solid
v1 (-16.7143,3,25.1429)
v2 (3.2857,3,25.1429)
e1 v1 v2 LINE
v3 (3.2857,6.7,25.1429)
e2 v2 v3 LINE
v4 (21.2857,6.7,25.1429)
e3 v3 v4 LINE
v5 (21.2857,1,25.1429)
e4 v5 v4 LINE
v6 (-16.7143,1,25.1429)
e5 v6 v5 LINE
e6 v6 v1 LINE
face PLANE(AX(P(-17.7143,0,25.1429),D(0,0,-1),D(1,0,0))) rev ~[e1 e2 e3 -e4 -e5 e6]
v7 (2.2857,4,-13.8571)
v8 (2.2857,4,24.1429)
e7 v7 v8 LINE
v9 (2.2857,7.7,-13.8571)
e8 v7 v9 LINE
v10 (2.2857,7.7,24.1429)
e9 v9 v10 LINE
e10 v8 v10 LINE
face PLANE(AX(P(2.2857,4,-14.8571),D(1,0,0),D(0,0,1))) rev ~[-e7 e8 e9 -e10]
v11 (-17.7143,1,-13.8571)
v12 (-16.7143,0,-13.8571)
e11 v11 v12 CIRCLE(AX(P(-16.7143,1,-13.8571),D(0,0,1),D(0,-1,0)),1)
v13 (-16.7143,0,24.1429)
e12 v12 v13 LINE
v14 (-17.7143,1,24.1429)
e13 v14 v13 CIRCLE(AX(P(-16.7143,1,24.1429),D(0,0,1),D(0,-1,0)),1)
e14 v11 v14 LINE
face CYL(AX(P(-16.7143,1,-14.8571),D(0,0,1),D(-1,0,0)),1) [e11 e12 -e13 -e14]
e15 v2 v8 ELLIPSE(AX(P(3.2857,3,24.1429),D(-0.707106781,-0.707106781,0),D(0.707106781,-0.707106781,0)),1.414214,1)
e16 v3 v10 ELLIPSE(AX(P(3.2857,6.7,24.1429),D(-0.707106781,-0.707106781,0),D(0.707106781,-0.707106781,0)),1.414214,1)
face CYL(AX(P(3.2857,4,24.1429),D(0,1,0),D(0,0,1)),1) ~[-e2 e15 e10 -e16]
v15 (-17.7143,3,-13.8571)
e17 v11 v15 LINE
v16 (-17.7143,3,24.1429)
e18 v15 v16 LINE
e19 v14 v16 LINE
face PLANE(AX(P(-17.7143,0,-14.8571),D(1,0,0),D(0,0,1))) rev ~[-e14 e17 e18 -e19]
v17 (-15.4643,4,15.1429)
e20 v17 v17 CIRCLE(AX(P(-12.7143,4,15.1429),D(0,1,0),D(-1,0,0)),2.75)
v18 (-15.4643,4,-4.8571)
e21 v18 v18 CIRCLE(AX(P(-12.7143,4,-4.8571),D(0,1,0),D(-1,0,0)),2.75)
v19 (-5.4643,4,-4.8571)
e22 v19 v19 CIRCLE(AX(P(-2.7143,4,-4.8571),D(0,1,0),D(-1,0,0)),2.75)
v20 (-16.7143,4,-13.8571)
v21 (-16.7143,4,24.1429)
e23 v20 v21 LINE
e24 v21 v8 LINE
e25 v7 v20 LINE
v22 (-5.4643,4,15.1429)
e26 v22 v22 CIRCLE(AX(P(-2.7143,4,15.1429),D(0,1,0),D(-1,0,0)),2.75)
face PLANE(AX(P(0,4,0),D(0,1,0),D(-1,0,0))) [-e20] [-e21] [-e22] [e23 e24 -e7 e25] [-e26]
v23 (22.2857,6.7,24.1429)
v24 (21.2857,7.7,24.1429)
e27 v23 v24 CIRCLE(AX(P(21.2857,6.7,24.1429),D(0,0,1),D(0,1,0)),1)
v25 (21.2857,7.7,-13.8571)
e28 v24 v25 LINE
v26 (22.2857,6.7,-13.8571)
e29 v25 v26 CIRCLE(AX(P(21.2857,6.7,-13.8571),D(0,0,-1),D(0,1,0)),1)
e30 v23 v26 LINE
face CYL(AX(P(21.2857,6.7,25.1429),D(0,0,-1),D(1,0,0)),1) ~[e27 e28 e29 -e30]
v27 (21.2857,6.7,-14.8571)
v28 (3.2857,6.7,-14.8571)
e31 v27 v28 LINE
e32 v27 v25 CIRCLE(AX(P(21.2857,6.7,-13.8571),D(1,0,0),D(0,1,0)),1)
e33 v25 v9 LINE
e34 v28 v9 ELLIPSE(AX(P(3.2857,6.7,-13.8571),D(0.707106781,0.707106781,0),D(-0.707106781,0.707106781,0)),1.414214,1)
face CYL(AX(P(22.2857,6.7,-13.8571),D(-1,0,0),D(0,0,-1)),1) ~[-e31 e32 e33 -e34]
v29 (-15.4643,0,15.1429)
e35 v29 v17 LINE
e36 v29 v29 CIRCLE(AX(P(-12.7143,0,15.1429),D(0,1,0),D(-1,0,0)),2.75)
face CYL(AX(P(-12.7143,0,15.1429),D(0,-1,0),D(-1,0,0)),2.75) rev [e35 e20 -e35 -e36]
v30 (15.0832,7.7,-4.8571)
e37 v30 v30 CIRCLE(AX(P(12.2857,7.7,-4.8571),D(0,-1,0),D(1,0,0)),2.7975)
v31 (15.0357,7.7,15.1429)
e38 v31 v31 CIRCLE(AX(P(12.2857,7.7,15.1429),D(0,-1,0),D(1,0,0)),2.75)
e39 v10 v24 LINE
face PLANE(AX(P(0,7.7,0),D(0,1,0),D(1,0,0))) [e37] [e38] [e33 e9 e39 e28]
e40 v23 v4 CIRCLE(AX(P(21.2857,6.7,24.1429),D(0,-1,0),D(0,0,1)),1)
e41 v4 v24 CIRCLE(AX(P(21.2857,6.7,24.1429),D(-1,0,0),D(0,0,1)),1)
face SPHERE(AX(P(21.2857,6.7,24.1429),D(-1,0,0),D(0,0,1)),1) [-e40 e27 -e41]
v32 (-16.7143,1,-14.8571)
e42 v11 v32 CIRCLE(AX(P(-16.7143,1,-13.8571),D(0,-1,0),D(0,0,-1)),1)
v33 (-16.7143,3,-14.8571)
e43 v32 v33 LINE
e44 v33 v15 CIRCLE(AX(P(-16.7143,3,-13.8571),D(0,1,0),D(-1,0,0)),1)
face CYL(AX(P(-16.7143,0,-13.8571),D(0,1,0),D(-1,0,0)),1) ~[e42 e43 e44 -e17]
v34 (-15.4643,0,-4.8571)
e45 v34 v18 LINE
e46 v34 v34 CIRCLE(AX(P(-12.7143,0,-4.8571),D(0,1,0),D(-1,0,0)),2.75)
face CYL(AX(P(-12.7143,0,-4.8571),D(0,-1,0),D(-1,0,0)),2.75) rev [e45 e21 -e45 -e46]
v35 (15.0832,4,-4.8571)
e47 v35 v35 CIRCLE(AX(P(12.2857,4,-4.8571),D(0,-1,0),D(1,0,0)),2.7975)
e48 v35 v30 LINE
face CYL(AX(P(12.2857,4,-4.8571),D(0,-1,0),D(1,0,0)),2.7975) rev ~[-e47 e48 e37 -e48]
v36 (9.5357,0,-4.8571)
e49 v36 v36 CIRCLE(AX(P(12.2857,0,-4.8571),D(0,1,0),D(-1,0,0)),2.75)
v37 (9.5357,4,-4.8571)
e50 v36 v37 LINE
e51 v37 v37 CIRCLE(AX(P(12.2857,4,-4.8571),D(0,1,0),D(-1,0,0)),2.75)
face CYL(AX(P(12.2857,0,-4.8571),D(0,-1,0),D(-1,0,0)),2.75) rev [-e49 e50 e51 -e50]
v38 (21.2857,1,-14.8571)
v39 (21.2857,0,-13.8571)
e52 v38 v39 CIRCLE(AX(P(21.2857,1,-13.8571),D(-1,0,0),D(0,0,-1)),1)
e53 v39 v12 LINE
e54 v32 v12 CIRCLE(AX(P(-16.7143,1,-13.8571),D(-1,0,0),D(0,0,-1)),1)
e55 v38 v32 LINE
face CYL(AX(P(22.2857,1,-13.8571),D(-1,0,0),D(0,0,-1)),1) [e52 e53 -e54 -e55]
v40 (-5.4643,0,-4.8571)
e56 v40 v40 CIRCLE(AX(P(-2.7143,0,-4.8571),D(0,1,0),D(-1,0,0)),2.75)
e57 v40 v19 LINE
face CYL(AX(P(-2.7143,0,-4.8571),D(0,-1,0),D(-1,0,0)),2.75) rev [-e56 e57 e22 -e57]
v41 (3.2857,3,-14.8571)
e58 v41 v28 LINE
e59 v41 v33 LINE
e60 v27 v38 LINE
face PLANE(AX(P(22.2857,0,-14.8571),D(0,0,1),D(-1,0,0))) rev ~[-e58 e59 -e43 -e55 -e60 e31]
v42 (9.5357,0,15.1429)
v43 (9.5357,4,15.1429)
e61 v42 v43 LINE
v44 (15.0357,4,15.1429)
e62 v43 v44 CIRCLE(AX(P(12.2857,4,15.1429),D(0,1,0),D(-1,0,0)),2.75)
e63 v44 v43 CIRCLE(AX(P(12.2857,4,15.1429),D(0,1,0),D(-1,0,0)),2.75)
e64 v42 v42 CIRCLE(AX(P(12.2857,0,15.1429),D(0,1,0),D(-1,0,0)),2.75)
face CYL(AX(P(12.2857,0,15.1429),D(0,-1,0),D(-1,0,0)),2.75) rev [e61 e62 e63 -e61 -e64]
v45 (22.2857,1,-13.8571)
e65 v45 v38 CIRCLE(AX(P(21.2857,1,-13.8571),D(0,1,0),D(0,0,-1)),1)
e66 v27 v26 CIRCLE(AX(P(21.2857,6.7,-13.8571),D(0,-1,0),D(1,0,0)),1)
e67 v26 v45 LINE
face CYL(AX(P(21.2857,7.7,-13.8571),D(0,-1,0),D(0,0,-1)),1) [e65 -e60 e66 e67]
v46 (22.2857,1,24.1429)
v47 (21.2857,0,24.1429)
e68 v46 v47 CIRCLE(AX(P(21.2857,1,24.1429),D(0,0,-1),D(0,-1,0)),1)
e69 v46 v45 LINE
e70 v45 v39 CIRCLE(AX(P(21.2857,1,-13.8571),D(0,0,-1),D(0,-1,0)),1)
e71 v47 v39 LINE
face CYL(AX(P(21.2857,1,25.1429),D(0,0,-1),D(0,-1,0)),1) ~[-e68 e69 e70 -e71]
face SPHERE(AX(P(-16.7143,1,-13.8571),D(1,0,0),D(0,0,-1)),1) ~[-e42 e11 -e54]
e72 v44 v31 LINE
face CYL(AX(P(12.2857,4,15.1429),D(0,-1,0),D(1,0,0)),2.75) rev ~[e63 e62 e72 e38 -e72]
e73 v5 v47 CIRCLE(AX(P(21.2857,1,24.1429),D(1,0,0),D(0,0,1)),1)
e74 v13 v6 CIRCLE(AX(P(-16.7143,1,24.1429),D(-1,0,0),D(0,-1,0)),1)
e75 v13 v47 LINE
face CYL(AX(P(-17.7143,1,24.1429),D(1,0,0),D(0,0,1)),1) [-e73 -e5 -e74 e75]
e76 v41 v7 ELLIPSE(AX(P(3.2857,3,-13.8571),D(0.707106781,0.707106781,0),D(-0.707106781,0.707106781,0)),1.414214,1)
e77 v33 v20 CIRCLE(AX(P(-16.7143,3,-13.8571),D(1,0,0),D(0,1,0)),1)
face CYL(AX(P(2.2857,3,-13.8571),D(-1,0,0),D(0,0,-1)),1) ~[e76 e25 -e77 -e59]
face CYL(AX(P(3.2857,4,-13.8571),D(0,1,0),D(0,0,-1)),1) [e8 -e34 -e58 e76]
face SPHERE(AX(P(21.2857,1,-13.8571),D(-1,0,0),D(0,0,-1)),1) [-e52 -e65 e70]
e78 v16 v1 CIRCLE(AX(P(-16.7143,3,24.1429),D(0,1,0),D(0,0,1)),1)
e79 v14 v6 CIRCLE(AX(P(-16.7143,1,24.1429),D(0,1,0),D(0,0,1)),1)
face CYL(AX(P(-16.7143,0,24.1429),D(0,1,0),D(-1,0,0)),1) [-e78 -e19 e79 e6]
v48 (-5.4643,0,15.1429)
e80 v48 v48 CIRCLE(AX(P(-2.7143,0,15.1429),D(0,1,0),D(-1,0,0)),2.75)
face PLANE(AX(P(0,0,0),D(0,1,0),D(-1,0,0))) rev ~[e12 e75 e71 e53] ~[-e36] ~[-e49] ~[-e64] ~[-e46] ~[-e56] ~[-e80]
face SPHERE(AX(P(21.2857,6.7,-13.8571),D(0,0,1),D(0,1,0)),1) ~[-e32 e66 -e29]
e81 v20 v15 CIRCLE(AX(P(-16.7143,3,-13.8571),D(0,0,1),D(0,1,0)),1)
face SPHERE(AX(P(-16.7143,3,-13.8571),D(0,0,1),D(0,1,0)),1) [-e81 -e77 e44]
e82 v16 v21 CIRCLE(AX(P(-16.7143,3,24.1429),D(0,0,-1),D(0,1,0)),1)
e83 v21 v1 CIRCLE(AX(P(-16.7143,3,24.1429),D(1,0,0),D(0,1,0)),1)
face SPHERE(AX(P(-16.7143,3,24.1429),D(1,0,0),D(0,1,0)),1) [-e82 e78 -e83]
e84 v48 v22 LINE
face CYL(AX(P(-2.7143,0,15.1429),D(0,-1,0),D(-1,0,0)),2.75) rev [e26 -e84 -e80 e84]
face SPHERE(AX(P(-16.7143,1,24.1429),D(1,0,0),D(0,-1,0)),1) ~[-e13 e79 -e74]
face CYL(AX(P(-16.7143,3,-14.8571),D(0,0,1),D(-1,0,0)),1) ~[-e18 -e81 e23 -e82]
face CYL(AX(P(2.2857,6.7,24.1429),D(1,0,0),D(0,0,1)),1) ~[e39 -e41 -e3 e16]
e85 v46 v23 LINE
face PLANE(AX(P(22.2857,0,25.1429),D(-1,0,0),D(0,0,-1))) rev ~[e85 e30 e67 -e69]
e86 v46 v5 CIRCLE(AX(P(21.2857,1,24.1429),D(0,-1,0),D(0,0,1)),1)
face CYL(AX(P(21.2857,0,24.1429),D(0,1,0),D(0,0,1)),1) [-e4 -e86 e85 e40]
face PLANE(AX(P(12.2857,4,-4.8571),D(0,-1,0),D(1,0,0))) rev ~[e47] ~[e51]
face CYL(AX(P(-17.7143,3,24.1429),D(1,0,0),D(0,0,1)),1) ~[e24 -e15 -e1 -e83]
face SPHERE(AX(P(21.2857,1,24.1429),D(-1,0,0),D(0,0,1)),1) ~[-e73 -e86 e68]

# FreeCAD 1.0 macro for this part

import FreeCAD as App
import Part
import Sketcher

V = App.Vector
Q = App.Units.Quantity


def edges_at(feature, points):
    """Names of the edges that pass closest to the given points."""
    edges = feature.Shape.Edges
    near = lambda p: min(range(len(edges)), key=lambda i: edges[i].distToShape(Part.Vertex(*p))[0])
    return sorted({f"Edge{near(p) + 1}" for p in points})

doc = App.newDocument("Part")
body = doc.addObject("PartDesign::Body", "Body")

# Sketch on XZ plane
sketch1 = body.newObject("Sketcher::SketchObject", "Sketch")
sketch1.AttachmentSupport = (doc.getObject("XZ_Plane"), [""])
sketch1.MapMode = "FlatFace"
sketch1.addGeometry([
    Part.LineSegment(V(-17.7, -14.9, 0), V(-17.7, 25.1, 0)),  # 0
    Part.LineSegment(V(-17.7, 25.1, 0), V(22.3, 25.1, 0)),  # 1
    Part.LineSegment(V(22.3, 25.1, 0), V(22.3, -14.9, 0)),  # 2
    Part.LineSegment(V(22.3, -14.9, 0), V(-17.7, -14.9, 0)),  # 3
    Part.Circle(V(12.3, -4.9, 0), V(0, 0, 1), 2.8),  # 4
    Part.Circle(V(-2.7, -4.9, 0), V(0, 0, 1), 2.8),  # 5
    Part.Circle(V(-12.7, -4.9, 0), V(0, 0, 1), 2.8),  # 6
    Part.Circle(V(12.3, 15.1, 0), V(0, 0, 1), 2.8),  # 7
    Part.Circle(V(-2.7, 15.1, 0), V(0, 0, 1), 2.8),  # 8
    Part.Circle(V(-12.7, 15.1, 0), V(0, 0, 1), 2.8),  # 9
], False)
sketch1.addConstraint([
    Sketcher.Constraint("Coincident", 0, 2, 1, 1),
    Sketcher.Constraint("Coincident", 1, 2, 2, 1),
    Sketcher.Constraint("Coincident", 2, 2, 3, 1),
    Sketcher.Constraint("Coincident", 3, 2, 0, 1),
    Sketcher.Constraint("Vertical", 0),
    Sketcher.Constraint("Horizontal", 1),
    Sketcher.Constraint("Vertical", 2),
    Sketcher.Constraint("Horizontal", 3),
    Sketcher.Constraint("Equal", 4, 5),
    Sketcher.Constraint("Equal", 5, 6),
    Sketcher.Constraint("Equal", 6, 7),
    Sketcher.Constraint("Equal", 7, 8),
    Sketcher.Constraint("Equal", 8, 9),
    Sketcher.Constraint("Horizontal", 4, 3, 5, 3),
    Sketcher.Constraint("Horizontal", 5, 3, 6, 3),
    Sketcher.Constraint("Horizontal", 7, 3, 8, 3),
    Sketcher.Constraint("Horizontal", 8, 3, 9, 3),
    Sketcher.Constraint("Vertical", 4, 3, 7, 3),
    Sketcher.Constraint("Vertical", 5, 3, 8, 3),
    Sketcher.Constraint("Vertical", 6, 3, 9, 3),
    Sketcher.Constraint("Equal", 3, 0),
    Sketcher.Constraint("Diameter", 4, Q("5.5 mm")),
    Sketcher.Constraint("DistanceX", 1, 1, 1, 2, Q("40 mm")),
    Sketcher.Constraint("DistanceX", 5, 3, 4, 3, Q("15 mm")),
    Sketcher.Constraint("DistanceX", 6, 3, 5, 3, Q("10 mm")),
    Sketcher.Constraint("DistanceY", 4, 3, 7, 3, Q("20 mm")),
    Sketcher.Constraint("DistanceX", 0, 2, 9, 3, Q("5 mm")),
    Sketcher.Constraint("DistanceY", 9, 3, 0, 2, Q("10 mm")),
    Sketcher.Constraint("DistanceY", 4, 3, -1, 1, Q("4.857 mm")),
    Sketcher.Constraint("DistanceX", -1, 1, 4, 3, Q("12.2857 mm")),
])
pad1 = body.newObject("PartDesign::Pad", "Pad")
pad1.Profile = sketch1
pad1.Length = 4
pad1.Reversed = True

# Sketch on XZ plane
sketch2 = body.newObject("Sketcher::SketchObject", "Sketch001")
sketch2.AttachmentSupport = (doc.getObject("XZ_Plane"), [""])
sketch2.MapMode = "FlatFace"
sketch2.AttachmentOffset = App.Placement(V(0, 0, -4), App.Rotation())
sketch2.addGeometry([
    Part.LineSegment(V(2, 25, 0), V(22, 25, 0)),
    Part.LineSegment(V(22, 25, 0), V(22, -15, 0)),
    Part.LineSegment(V(22, -15, 0), V(2, -15, 0)),
    Part.LineSegment(V(2, -15, 0), V(2, 25, 0)),
], False)
sketch2.addConstraint([
    Sketcher.Constraint("Coincident", 0, 2, 1, 1),
    Sketcher.Constraint("Coincident", 1, 2, 2, 1),
    Sketcher.Constraint("Coincident", 2, 2, 3, 1),
    Sketcher.Constraint("Coincident", 3, 2, 0, 1),
    Sketcher.Constraint("Horizontal", 0),
    Sketcher.Constraint("Vertical", 1),
    Sketcher.Constraint("Horizontal", 2),
    Sketcher.Constraint("Vertical", 3),
    Sketcher.Constraint("DistanceX", 0, 1, 0, 2, Q("20 mm")),
    Sketcher.Constraint("DistanceY", 1, 2, 1, 1, Q("40 mm")),
    Sketcher.Constraint("DistanceY", -1, 1, 0, 2, Q("25.143 mm")),
    Sketcher.Constraint("DistanceX", -1, 1, 0, 2, Q("22.2857 mm")),
])
pad2 = body.newObject("PartDesign::Pad", "Pad001")
pad2.Profile = sketch2
pad2.Length = 3.7
pad2.Reversed = True

# Sketch on XZ plane
sketch3 = body.newObject("Sketcher::SketchObject", "Sketch002")
sketch3.AttachmentSupport = (doc.getObject("XZ_Plane"), [""])
sketch3.MapMode = "FlatFace"
sketch3.AttachmentOffset = App.Placement(V(0, 0, -4), App.Rotation())
sketch3.addGeometry([
    Part.Circle(V(12.3, -4.9, 0), V(0, 0, 1), 2.8),
    Part.Circle(V(12.3, 15.1, 0), V(0, 0, 1), 2.8),
], False)
sketch3.addConstraint([
    Sketcher.Constraint("Vertical", 0, 3, 1, 3),
    Sketcher.Constraint("Diameter", 1, Q("5.5 mm")),
    Sketcher.Constraint("DistanceY", 0, 3, 1, 3, Q("20 mm")),
    Sketcher.Constraint("Diameter", 0, Q("5.595 mm")),
    Sketcher.Constraint("DistanceY", 0, 3, -1, 1, Q("4.857 mm")),
    Sketcher.Constraint("DistanceX", -1, 1, 0, 3, Q("12.2857 mm")),
])
pocket1 = body.newObject("PartDesign::Pocket", "Pocket")
pocket1.Profile = sketch3
pocket1.Length = 3.7
doc.recompute()

fillet = body.newObject("PartDesign::Fillet", "Fillet")
fillet.Base = (pocket1, edges_at(pocket1, [
    (2.286, 0, 25.143),
    (-7.714, 4, 25.143),
    (12.286, 7.7, 25.143),
    (22.286, 3.85, 25.143),
    (22.286, 7.7, 5.143),
    (12.286, 7.7, -14.857),
    (-17.714, 4, 5.143),
    (-7.714, 4, -14.857),
    (2.286, 0, -14.857),
    (-17.714, 2, -14.857),
    (-17.714, 0, 5.143),
    (-17.714, 2, 25.143),
    (22.286, 3.85, -14.857),
    (22.286, 0, 5.143),
    (2.286, 5.85, 25.143),
    (2.286, 5.85, -14.857),
]))
fillet.Radius = 1

doc.recompute()
